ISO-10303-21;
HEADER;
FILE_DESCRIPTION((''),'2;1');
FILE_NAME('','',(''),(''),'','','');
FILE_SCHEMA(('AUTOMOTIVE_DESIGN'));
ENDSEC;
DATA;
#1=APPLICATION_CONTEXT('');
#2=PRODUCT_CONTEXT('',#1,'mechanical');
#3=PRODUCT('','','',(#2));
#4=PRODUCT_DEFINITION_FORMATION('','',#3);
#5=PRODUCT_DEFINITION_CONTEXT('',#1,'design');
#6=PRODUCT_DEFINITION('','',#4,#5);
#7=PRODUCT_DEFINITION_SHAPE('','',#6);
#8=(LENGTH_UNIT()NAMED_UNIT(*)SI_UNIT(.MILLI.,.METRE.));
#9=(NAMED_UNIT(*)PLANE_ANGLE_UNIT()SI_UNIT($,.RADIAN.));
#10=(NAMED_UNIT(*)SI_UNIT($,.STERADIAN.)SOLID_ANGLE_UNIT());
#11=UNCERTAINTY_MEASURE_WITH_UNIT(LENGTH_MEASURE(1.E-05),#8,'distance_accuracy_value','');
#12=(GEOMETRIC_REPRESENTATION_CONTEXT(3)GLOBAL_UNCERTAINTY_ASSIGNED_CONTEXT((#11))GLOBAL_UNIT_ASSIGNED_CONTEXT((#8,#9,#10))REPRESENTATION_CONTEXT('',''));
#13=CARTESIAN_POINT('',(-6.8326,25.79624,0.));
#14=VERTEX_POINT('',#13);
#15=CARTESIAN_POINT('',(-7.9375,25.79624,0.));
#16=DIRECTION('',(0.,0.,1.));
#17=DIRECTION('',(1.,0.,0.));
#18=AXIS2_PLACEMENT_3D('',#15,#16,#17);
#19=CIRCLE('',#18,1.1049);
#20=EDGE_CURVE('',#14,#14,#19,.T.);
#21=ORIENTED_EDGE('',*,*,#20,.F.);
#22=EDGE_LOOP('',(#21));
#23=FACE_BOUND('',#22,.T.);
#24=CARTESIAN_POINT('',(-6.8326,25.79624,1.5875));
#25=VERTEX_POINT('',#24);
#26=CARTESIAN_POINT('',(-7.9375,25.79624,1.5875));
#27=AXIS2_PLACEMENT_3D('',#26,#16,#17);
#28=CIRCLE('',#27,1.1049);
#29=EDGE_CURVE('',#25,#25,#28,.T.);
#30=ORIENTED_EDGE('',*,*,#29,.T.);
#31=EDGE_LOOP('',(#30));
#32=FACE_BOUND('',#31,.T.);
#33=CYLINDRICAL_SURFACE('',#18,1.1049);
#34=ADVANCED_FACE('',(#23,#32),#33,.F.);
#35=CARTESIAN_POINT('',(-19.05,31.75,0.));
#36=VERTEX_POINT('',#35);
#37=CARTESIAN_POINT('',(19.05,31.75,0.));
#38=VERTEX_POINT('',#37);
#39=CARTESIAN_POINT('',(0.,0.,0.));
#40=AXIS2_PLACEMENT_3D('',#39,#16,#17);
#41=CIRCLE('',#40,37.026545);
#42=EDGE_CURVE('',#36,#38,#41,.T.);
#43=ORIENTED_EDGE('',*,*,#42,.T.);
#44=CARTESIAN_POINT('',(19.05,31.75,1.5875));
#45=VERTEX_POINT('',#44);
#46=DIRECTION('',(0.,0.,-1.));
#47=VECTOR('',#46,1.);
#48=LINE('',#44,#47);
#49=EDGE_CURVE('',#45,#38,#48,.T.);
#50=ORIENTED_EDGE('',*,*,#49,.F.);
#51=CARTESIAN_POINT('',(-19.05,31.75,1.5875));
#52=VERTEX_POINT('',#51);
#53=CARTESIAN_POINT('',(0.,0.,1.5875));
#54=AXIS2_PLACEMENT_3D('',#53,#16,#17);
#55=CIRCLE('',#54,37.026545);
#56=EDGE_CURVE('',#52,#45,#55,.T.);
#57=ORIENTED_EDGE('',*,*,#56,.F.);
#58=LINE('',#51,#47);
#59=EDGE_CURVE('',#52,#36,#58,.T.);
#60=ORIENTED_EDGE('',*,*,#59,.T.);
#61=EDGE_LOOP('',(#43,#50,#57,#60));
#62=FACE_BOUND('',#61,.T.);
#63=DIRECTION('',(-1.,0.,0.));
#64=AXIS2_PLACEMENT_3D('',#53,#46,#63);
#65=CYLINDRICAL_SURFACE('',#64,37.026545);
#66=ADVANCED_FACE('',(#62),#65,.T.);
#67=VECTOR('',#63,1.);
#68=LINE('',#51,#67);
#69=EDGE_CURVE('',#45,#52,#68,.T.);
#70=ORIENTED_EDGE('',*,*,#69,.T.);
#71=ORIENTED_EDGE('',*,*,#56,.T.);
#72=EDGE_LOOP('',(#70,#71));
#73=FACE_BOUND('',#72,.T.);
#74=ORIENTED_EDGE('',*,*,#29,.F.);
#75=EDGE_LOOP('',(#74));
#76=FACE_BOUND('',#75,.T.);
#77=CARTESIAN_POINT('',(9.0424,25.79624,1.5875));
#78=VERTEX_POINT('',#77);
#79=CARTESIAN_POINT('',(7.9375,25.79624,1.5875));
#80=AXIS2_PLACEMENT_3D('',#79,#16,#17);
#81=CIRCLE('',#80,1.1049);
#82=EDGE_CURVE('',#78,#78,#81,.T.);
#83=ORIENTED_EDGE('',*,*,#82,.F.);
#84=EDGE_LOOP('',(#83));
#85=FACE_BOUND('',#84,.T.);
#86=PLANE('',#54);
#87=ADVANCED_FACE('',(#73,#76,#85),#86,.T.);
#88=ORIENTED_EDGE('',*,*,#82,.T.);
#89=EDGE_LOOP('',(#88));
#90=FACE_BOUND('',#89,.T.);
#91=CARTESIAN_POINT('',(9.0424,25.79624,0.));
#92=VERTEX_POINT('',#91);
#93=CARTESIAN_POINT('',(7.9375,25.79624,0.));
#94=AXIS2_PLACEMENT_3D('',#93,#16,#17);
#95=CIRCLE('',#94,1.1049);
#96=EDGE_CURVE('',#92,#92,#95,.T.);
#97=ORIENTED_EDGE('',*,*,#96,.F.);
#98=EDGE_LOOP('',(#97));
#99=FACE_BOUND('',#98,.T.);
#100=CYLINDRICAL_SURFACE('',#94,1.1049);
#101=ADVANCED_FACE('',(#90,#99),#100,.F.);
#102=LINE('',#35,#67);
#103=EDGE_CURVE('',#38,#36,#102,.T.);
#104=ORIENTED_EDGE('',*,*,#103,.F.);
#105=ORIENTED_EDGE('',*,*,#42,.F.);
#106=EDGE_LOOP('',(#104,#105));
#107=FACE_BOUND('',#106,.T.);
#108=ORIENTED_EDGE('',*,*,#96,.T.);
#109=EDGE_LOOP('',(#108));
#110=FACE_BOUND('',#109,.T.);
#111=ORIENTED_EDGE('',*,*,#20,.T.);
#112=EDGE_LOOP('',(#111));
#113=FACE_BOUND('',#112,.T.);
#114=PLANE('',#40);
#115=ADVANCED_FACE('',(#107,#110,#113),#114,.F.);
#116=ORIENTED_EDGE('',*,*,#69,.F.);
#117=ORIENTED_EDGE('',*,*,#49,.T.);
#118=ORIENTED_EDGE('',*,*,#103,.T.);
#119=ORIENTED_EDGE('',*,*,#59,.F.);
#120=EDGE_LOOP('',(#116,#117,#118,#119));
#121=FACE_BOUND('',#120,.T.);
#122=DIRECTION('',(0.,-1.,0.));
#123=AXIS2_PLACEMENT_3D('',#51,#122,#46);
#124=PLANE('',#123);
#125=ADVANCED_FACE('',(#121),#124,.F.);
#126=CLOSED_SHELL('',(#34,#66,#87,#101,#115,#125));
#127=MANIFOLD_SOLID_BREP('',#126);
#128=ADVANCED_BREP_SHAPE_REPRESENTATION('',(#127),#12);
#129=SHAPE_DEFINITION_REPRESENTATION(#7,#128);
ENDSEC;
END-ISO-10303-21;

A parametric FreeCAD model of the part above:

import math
import FreeCAD as App
import Part
import Sketcher

V = App.Vector
Q = App.Units.Quantity

doc = App.newDocument("Part")
params = doc.addObject("Spreadsheet::Sheet", "Params")
for row, (alias, value) in enumerate([
    ("sketch1_width", "1.5 in"),
    ("pad1_length", "0.0625 in"),
    ("sketch2_diameter", "0.087 in"),
], start=1):
    params.set(f"A{row}", alias)
    params.set(f"B{row}", "=" + value)
    params.setAlias(f"B{row}", alias)

body = doc.addObject("PartDesign::Body", "Body")

# Sketch on XY plane
sketch1 = body.newObject("Sketcher::SketchObject", "Sketch")
sketch1.AttachmentSupport = (doc.getObject("XY_Plane"), [""])
sketch1.MapMode = "FlatFace"
sketch1.addGeometry(Part.LineSegment(V(19, 32, 0), V(-19, 32, 0)), False)
sketch1.addGeometry(Part.ArcOfCircle(Part.Circle(V(0, 0, 0), V(0, 0, 1), 37), math.radians(121), math.radians(419)), False)
sketch1.addConstraint(Sketcher.Constraint("Coincident", 0, 1, 1, 2))
sketch1.addConstraint(Sketcher.Constraint("Coincident", 1, 1, 0, 2))
sketch1.addConstraint(Sketcher.Constraint("Horizontal", 0))
sketch1.addConstraint(Sketcher.Constraint("Coincident", 1, 3, -1, 1))
sketch1.addConstraint(Sketcher.Constraint("DistanceX", 0, 2, 0, 1, Q("1.5 in")))
sketch1.addConstraint(Sketcher.Constraint("DistanceY", -1, 1, 0, 1, Q("1.25 in")))
sketch1.setExpression("Constraints[4]", "Params.sketch1_width")
pad1 = body.newObject("PartDesign::Pad", "Pad")
pad1.Profile = sketch1
pad1.setExpression("Length", "Params.pad1_length")

# Sketch on XY plane
sketch2 = body.newObject("Sketcher::SketchObject", "Sketch001")
sketch2.AttachmentSupport = (doc.getObject("XY_Plane"), [""])
sketch2.MapMode = "FlatFace"
sketch2.AttachmentOffset = App.Placement(V(0, 0, 0.0625 * 25.4), App.Rotation())
sketch2.addGeometry(Part.Circle(V(7.9, 25.8, 0), V(0, 0, 1), 1.1), False)
sketch2.addGeometry(Part.Circle(V(-7.9, 25.8, 0), V(0, 0, 1), 1.1), False)
sketch2.addConstraint(Sketcher.Constraint("Equal", 0, 1))
sketch2.addConstraint(Sketcher.Constraint("Symmetric", 0, 3, 1, 3, -2))
sketch2.addConstraint(Sketcher.Constraint("Diameter", 0, Q("0.087 in")))
sketch2.addConstraint(Sketcher.Constraint("DistanceX", -1, 1, 0, 3, Q("0.3125 in")))
sketch2.addConstraint(Sketcher.Constraint("DistanceY", -1, 1, 0, 3, Q("1.0156 in")))
sketch2.setExpression("Constraints[2]", "Params.sketch2_diameter")
pocket1 = body.newObject("PartDesign::Pocket", "Pocket")
pocket1.Profile = sketch2
pocket1.Type = "ThroughAll"

doc.recompute()
